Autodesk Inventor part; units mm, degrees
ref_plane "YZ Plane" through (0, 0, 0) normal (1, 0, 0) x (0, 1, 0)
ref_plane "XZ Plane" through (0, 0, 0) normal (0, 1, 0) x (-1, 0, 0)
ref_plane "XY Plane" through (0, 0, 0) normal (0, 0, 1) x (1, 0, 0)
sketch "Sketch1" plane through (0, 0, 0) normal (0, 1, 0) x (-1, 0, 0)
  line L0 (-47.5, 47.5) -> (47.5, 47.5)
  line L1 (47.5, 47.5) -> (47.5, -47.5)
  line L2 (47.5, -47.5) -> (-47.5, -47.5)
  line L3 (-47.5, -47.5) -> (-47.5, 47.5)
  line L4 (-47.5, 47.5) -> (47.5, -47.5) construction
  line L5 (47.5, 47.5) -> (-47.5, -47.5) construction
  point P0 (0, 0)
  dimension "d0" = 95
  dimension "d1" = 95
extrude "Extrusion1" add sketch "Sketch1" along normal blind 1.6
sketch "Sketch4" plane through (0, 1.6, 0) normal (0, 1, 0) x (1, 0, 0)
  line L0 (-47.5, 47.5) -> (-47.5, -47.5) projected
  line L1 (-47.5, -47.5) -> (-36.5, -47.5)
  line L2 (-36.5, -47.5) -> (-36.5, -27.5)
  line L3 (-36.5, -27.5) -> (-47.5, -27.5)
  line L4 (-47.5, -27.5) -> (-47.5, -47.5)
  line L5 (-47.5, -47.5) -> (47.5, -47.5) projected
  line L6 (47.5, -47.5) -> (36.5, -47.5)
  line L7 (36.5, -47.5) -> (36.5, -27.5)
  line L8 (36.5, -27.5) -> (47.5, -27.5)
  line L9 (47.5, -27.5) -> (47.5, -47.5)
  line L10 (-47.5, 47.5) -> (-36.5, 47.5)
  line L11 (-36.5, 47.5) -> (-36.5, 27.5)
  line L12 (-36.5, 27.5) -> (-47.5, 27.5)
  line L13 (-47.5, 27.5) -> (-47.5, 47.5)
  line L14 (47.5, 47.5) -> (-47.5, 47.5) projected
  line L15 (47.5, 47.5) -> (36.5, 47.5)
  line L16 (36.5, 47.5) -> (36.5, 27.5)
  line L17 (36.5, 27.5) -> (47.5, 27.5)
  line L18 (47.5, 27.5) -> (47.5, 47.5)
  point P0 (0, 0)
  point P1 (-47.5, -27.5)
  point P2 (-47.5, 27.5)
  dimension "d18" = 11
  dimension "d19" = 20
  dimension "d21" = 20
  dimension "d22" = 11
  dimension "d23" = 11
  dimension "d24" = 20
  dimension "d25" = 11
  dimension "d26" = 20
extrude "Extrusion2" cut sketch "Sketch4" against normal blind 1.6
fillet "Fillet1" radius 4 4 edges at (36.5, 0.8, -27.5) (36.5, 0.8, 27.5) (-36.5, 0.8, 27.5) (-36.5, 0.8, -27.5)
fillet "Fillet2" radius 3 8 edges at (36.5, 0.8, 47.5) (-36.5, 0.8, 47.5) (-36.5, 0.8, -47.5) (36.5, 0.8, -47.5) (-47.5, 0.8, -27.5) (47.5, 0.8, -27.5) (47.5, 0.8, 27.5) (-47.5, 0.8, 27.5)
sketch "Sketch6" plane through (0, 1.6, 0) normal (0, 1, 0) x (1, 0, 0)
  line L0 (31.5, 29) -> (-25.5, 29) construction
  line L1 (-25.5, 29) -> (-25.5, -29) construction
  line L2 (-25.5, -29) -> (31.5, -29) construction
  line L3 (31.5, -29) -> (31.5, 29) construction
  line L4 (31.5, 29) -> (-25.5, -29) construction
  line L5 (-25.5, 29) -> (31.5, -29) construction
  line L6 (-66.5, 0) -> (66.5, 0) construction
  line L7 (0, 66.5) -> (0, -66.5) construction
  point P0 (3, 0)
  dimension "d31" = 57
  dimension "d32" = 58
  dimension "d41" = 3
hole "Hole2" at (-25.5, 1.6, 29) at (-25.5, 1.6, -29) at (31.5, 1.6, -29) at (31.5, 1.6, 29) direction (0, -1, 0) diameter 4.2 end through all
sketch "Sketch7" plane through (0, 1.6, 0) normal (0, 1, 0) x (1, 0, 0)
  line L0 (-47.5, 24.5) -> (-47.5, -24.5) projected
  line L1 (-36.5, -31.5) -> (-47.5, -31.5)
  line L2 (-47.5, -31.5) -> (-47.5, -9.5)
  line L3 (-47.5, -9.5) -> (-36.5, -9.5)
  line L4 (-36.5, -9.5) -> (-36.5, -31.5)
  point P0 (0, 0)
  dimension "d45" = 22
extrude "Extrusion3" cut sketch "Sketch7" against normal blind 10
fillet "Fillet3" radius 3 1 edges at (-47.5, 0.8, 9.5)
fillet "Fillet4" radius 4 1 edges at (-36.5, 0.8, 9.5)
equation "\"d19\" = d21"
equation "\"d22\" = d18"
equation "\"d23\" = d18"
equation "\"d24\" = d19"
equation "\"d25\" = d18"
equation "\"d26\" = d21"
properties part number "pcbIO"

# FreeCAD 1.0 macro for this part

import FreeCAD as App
import Part
import Sketcher


def edges_at(feature, points):
    """Names of the edges that pass closest to the given points."""
    edges = feature.Shape.Edges
    near = lambda p: min(range(len(edges)), key=lambda i: edges[i].distToShape(Part.Vertex(*p))[0])
    return sorted({f"Edge{near(p) + 1}" for p in points})


def add_polygon(sketch, points):
    """Adds a closed chain of lines whose ends are joined by coincident constraints."""
    first, n = sketch.GeometryCount, len(points)
    for a, b in zip(points, points[1:] + points[:1]):
        sketch.addGeometry(Part.LineSegment(App.Vector(*a, 0), App.Vector(*b, 0)), False)
    for i in range(n):
        sketch.addConstraint(Sketcher.Constraint("Coincident", first + i, 2, first + (i + 1) % n, 1))

doc = App.newDocument("Part")
params = doc.addObject("Spreadsheet::Sheet", "Params")
for row, (alias, value) in enumerate([
    ("sketch1_width", "95 mm"),
    ("pad1_length", "1.6 mm"),
    ("sketch2_width", "11 mm"),
    ("sketch2_height", "20 mm"),
    ("pocket1_length", "1.6 mm"),
    ("fillet_radius", "4 mm"),
    ("fillet2_radius", "3 mm"),
    ("sketch3_diameter", "4.2 mm"),
    ("hole_diameter", "4.2 mm"),
    ("sketch4_height", "22 mm"),
    ("sketch4_width", "11 mm"),
    ("pocket2_length", "10 mm"),
    ("fillet3_radius", "3 mm"),
    ("fillet4_radius", "4 mm"),
], start=1):
    params.set(f"A{row}", alias)
    params.set(f"B{row}", "=" + value)
    params.setAlias(f"B{row}", alias)

body = doc.addObject("PartDesign::Body", "Body")

# Sketch on XZ plane
sketch1 = doc.addObject("Sketcher::SketchObject", "Sketch")
body.addObject(sketch1)
sketch1.AttachmentSupport = (doc.XZ_Plane, [""])
sketch1.MapMode = "FlatFace"
add_polygon(sketch1, [(-47.5, 47.5), (47.5, 47.5), (47.5, -47.5), (-47.5, -47.5)])  # lines 0-3
sketch1.addConstraint(Sketcher.Constraint("Horizontal", 0))
sketch1.addConstraint(Sketcher.Constraint("Vertical", 1))
sketch1.addConstraint(Sketcher.Constraint("Horizontal", 2))
sketch1.addConstraint(Sketcher.Constraint("Vertical", 3))
sketch1.addConstraint(Sketcher.Constraint("Symmetric", 0, 2, 2, 2, -1, 1))
sketch1.addConstraint(Sketcher.Constraint("Equal", 2, 1))
sketch1.addConstraint(Sketcher.Constraint("DistanceX", 0, 1, 0, 2, 95.0))
sketch1.setExpression("Constraints[10]", "Params.sketch1_width")
pad1 = doc.addObject("PartDesign::Pad", "Pad")
body.addObject(pad1)
pad1.Profile = sketch1
pad1.setExpression("Length", "Params.pad1_length")
pad1.Reversed = True

# Sketch on XZ plane
sketch2 = doc.addObject("Sketcher::SketchObject", "Sketch001")
body.addObject(sketch2)
sketch2.AttachmentSupport = (doc.XZ_Plane, [""])
sketch2.MapMode = "FlatFace"
sketch2.AttachmentOffset = App.Placement(App.Vector(0, 0, -1.6), App.Rotation())
add_polygon(sketch2, [(-36.5, -47.5), (-47.5, -47.5), (-47.5, -27.5), (-36.5, -27.5)])  # lines 0-3
add_polygon(sketch2, [(47.5, -47.5), (36.5, -47.5), (36.5, -27.5), (47.5, -27.5)])  # lines 4-7
add_polygon(sketch2, [(36.5, 27.5), (36.5, 47.5), (47.5, 47.5), (47.5, 27.5)])  # lines 8-11
add_polygon(sketch2, [(-36.5, 27.5), (-47.5, 27.5), (-47.5, 47.5), (-36.5, 47.5)])  # lines 12-15
sketch2.addConstraint(Sketcher.Constraint("Horizontal", 0))
sketch2.addConstraint(Sketcher.Constraint("Vertical", 1))
sketch2.addConstraint(Sketcher.Constraint("Horizontal", 2))
sketch2.addConstraint(Sketcher.Constraint("Vertical", 3))
sketch2.addConstraint(Sketcher.Constraint("Horizontal", 4))
sketch2.addConstraint(Sketcher.Constraint("Vertical", 5))
sketch2.addConstraint(Sketcher.Constraint("Horizontal", 6))
sketch2.addConstraint(Sketcher.Constraint("Vertical", 7))
sketch2.addConstraint(Sketcher.Constraint("Vertical", 8))
sketch2.addConstraint(Sketcher.Constraint("Horizontal", 9))
sketch2.addConstraint(Sketcher.Constraint("Vertical", 10))
sketch2.addConstraint(Sketcher.Constraint("Horizontal", 11))
sketch2.addConstraint(Sketcher.Constraint("Horizontal", 12))
sketch2.addConstraint(Sketcher.Constraint("Vertical", 13))
sketch2.addConstraint(Sketcher.Constraint("Horizontal", 14))
sketch2.addConstraint(Sketcher.Constraint("Vertical", 15))
sketch2.addConstraint(Sketcher.Constraint("Symmetric", 3, 2, 8, 2, -1, 1))
sketch2.addConstraint(Sketcher.Constraint("Symmetric", 1, 2, 10, 2, -1, 1))
sketch2.addConstraint(Sketcher.Constraint("Symmetric", 6, 2, 12, 2, -1, 1))
sketch2.addConstraint(Sketcher.Constraint("Symmetric", 4, 2, 14, 2, -1, 1))
sketch2.addConstraint(Sketcher.Constraint("Symmetric", 3, 2, 4, 2, -2))
sketch2.addConstraint(Sketcher.Constraint("Symmetric", 1, 2, 6, 2, -2))
sketch2.addConstraint(Sketcher.Constraint("DistanceX", 0, 2, 0, 1, 11.0))
sketch2.addConstraint(Sketcher.Constraint("DistanceY", 1, 1, 1, 2, 20.0))
sketch2.addConstraint(Sketcher.Constraint("DistanceX", 3, 2, 4, 2, 73.0))
sketch2.addConstraint(Sketcher.Constraint("DistanceY", 5, 2, 8, 2, 75.0))
sketch2.setExpression("Constraints[38]", "Params.sketch2_width")
sketch2.setExpression("Constraints[39]", "Params.sketch2_height")
pocket1 = doc.addObject("PartDesign::Pocket", "Pocket")
body.addObject(pocket1)
pocket1.Profile = sketch2
pocket1.setExpression("Length", "Params.pocket1_length")
pocket1.Reversed = True
doc.recompute()

fillet = doc.addObject("PartDesign::Fillet", "Fillet")
body.addObject(fillet)
fillet.Base = (pocket1, edges_at(pocket1, [
    (36.5, 0.8, -27.5),
    (36.5, 0.8, 27.5),
    (-36.5, 0.8, 27.5),
    (-36.5, 0.8, -27.5),
]))
fillet.setExpression("Radius", "Params.fillet_radius")
doc.recompute()

fillet2 = doc.addObject("PartDesign::Fillet", "Fillet001")
body.addObject(fillet2)
fillet2.Base = (fillet, edges_at(fillet, [
    (36.5, 0.8, 47.5),
    (-36.5, 0.8, 47.5),
    (-36.5, 0.8, -47.5),
    (36.5, 0.8, -47.5),
    (-47.5, 0.8, -27.5),
    (47.5, 0.8, -27.5),
    (47.5, 0.8, 27.5),
    (-47.5, 0.8, 27.5),
]))
fillet2.setExpression("Radius", "Params.fillet2_radius")

# Sketch on XZ plane
sketch3 = doc.addObject("Sketcher::SketchObject", "Sketch002")
body.addObject(sketch3)
sketch3.AttachmentSupport = (doc.XZ_Plane, [""])
sketch3.MapMode = "FlatFace"
sketch3.AttachmentOffset = App.Placement(App.Vector(0, 0, -1.6), App.Rotation())
sketch3.addGeometry(Part.Circle(App.Vector(-25.5, 29, 0), App.Vector(0, 0, 1), 2.1), False)
sketch3.addGeometry(Part.Circle(App.Vector(-25.5, -29, 0), App.Vector(0, 0, 1), 2.1), False)
sketch3.addGeometry(Part.Circle(App.Vector(31.5, -29, 0), App.Vector(0, 0, 1), 2.1), False)
sketch3.addGeometry(Part.Circle(App.Vector(31.5, 29, 0), App.Vector(0, 0, 1), 2.1), False)
sketch3.addConstraint(Sketcher.Constraint("Equal", 0, 1))
sketch3.addConstraint(Sketcher.Constraint("Equal", 1, 2))
sketch3.addConstraint(Sketcher.Constraint("Equal", 2, 3))
sketch3.addConstraint(Sketcher.Constraint("Symmetric", 0, 3, 1, 3, -1))
sketch3.addConstraint(Sketcher.Constraint("Symmetric", 2, 3, 3, 3, -1))
sketch3.addConstraint(Sketcher.Constraint("Horizontal", 1, 3, 2, 3))
sketch3.addConstraint(Sketcher.Constraint("Diameter", 0, 4.2))
sketch3.addConstraint(Sketcher.Constraint("DistanceY", -1, 1, 0, 3, 29.0))
sketch3.addConstraint(Sketcher.Constraint("DistanceX", 1, 3, 2, 3, 57.0))
sketch3.addConstraint(Sketcher.Constraint("DistanceX", 0, 3, -1, 1, 25.5))
sketch3.setExpression("Constraints[6]", "Params.sketch3_diameter")
doc.recompute()
hole = doc.addObject("PartDesign::Hole", "Hole")
body.addObject(hole)
hole.Profile = sketch3
hole.ThreadType = "None"
hole.setExpression("Diameter", "Params.hole_diameter")
hole.DepthType = "ThroughAll"
hole.Reversed = True

# Sketch on XZ plane
sketch4 = doc.addObject("Sketcher::SketchObject", "Sketch003")
body.addObject(sketch4)
sketch4.AttachmentSupport = (doc.XZ_Plane, [""])
sketch4.MapMode = "FlatFace"
sketch4.AttachmentOffset = App.Placement(App.Vector(0, 0, -1.6), App.Rotation())
add_polygon(sketch4, [(-36.5, 9.5), (-47.5, 9.5), (-47.5, 31.5), (-36.5, 31.5)])  # lines 0-3
sketch4.addConstraint(Sketcher.Constraint("Horizontal", 0))
sketch4.addConstraint(Sketcher.Constraint("Vertical", 1))
sketch4.addConstraint(Sketcher.Constraint("Horizontal", 2))
sketch4.addConstraint(Sketcher.Constraint("Vertical", 3))
sketch4.addConstraint(Sketcher.Constraint("DistanceY", 1, 1, 1, 2, 22.0))
sketch4.addConstraint(Sketcher.Constraint("DistanceX", 0, 2, 0, 1, 11.0))
sketch4.addConstraint(Sketcher.Constraint("DistanceX", 0, 2, -1, 1, 47.5))
sketch4.addConstraint(Sketcher.Constraint("DistanceY", -1, 1, 0, 2, 9.5))
sketch4.setExpression("Constraints[8]", "Params.sketch4_height")
sketch4.setExpression("Constraints[9]", "Params.sketch4_width")
pocket2 = doc.addObject("PartDesign::Pocket", "Pocket001")
body.addObject(pocket2)
pocket2.Profile = sketch4
pocket2.setExpression("Length", "Params.pocket2_length")
pocket2.Reversed = True
doc.recompute()

fillet3 = doc.addObject("PartDesign::Fillet", "Fillet002")
body.addObject(fillet3)
fillet3.Base = (pocket2, edges_at(pocket2, [(-47.5, 0.8, 9.5)]))
fillet3.setExpression("Radius", "Params.fillet3_radius")
doc.recompute()

fillet4 = doc.addObject("PartDesign::Fillet", "Fillet003")
body.addObject(fillet4)
fillet4.Base = (fillet3, edges_at(fillet3, [(-36.5, 0.8, 9.5)]))
fillet4.setExpression("Radius", "Params.fillet4_radius")

doc.recompute()
